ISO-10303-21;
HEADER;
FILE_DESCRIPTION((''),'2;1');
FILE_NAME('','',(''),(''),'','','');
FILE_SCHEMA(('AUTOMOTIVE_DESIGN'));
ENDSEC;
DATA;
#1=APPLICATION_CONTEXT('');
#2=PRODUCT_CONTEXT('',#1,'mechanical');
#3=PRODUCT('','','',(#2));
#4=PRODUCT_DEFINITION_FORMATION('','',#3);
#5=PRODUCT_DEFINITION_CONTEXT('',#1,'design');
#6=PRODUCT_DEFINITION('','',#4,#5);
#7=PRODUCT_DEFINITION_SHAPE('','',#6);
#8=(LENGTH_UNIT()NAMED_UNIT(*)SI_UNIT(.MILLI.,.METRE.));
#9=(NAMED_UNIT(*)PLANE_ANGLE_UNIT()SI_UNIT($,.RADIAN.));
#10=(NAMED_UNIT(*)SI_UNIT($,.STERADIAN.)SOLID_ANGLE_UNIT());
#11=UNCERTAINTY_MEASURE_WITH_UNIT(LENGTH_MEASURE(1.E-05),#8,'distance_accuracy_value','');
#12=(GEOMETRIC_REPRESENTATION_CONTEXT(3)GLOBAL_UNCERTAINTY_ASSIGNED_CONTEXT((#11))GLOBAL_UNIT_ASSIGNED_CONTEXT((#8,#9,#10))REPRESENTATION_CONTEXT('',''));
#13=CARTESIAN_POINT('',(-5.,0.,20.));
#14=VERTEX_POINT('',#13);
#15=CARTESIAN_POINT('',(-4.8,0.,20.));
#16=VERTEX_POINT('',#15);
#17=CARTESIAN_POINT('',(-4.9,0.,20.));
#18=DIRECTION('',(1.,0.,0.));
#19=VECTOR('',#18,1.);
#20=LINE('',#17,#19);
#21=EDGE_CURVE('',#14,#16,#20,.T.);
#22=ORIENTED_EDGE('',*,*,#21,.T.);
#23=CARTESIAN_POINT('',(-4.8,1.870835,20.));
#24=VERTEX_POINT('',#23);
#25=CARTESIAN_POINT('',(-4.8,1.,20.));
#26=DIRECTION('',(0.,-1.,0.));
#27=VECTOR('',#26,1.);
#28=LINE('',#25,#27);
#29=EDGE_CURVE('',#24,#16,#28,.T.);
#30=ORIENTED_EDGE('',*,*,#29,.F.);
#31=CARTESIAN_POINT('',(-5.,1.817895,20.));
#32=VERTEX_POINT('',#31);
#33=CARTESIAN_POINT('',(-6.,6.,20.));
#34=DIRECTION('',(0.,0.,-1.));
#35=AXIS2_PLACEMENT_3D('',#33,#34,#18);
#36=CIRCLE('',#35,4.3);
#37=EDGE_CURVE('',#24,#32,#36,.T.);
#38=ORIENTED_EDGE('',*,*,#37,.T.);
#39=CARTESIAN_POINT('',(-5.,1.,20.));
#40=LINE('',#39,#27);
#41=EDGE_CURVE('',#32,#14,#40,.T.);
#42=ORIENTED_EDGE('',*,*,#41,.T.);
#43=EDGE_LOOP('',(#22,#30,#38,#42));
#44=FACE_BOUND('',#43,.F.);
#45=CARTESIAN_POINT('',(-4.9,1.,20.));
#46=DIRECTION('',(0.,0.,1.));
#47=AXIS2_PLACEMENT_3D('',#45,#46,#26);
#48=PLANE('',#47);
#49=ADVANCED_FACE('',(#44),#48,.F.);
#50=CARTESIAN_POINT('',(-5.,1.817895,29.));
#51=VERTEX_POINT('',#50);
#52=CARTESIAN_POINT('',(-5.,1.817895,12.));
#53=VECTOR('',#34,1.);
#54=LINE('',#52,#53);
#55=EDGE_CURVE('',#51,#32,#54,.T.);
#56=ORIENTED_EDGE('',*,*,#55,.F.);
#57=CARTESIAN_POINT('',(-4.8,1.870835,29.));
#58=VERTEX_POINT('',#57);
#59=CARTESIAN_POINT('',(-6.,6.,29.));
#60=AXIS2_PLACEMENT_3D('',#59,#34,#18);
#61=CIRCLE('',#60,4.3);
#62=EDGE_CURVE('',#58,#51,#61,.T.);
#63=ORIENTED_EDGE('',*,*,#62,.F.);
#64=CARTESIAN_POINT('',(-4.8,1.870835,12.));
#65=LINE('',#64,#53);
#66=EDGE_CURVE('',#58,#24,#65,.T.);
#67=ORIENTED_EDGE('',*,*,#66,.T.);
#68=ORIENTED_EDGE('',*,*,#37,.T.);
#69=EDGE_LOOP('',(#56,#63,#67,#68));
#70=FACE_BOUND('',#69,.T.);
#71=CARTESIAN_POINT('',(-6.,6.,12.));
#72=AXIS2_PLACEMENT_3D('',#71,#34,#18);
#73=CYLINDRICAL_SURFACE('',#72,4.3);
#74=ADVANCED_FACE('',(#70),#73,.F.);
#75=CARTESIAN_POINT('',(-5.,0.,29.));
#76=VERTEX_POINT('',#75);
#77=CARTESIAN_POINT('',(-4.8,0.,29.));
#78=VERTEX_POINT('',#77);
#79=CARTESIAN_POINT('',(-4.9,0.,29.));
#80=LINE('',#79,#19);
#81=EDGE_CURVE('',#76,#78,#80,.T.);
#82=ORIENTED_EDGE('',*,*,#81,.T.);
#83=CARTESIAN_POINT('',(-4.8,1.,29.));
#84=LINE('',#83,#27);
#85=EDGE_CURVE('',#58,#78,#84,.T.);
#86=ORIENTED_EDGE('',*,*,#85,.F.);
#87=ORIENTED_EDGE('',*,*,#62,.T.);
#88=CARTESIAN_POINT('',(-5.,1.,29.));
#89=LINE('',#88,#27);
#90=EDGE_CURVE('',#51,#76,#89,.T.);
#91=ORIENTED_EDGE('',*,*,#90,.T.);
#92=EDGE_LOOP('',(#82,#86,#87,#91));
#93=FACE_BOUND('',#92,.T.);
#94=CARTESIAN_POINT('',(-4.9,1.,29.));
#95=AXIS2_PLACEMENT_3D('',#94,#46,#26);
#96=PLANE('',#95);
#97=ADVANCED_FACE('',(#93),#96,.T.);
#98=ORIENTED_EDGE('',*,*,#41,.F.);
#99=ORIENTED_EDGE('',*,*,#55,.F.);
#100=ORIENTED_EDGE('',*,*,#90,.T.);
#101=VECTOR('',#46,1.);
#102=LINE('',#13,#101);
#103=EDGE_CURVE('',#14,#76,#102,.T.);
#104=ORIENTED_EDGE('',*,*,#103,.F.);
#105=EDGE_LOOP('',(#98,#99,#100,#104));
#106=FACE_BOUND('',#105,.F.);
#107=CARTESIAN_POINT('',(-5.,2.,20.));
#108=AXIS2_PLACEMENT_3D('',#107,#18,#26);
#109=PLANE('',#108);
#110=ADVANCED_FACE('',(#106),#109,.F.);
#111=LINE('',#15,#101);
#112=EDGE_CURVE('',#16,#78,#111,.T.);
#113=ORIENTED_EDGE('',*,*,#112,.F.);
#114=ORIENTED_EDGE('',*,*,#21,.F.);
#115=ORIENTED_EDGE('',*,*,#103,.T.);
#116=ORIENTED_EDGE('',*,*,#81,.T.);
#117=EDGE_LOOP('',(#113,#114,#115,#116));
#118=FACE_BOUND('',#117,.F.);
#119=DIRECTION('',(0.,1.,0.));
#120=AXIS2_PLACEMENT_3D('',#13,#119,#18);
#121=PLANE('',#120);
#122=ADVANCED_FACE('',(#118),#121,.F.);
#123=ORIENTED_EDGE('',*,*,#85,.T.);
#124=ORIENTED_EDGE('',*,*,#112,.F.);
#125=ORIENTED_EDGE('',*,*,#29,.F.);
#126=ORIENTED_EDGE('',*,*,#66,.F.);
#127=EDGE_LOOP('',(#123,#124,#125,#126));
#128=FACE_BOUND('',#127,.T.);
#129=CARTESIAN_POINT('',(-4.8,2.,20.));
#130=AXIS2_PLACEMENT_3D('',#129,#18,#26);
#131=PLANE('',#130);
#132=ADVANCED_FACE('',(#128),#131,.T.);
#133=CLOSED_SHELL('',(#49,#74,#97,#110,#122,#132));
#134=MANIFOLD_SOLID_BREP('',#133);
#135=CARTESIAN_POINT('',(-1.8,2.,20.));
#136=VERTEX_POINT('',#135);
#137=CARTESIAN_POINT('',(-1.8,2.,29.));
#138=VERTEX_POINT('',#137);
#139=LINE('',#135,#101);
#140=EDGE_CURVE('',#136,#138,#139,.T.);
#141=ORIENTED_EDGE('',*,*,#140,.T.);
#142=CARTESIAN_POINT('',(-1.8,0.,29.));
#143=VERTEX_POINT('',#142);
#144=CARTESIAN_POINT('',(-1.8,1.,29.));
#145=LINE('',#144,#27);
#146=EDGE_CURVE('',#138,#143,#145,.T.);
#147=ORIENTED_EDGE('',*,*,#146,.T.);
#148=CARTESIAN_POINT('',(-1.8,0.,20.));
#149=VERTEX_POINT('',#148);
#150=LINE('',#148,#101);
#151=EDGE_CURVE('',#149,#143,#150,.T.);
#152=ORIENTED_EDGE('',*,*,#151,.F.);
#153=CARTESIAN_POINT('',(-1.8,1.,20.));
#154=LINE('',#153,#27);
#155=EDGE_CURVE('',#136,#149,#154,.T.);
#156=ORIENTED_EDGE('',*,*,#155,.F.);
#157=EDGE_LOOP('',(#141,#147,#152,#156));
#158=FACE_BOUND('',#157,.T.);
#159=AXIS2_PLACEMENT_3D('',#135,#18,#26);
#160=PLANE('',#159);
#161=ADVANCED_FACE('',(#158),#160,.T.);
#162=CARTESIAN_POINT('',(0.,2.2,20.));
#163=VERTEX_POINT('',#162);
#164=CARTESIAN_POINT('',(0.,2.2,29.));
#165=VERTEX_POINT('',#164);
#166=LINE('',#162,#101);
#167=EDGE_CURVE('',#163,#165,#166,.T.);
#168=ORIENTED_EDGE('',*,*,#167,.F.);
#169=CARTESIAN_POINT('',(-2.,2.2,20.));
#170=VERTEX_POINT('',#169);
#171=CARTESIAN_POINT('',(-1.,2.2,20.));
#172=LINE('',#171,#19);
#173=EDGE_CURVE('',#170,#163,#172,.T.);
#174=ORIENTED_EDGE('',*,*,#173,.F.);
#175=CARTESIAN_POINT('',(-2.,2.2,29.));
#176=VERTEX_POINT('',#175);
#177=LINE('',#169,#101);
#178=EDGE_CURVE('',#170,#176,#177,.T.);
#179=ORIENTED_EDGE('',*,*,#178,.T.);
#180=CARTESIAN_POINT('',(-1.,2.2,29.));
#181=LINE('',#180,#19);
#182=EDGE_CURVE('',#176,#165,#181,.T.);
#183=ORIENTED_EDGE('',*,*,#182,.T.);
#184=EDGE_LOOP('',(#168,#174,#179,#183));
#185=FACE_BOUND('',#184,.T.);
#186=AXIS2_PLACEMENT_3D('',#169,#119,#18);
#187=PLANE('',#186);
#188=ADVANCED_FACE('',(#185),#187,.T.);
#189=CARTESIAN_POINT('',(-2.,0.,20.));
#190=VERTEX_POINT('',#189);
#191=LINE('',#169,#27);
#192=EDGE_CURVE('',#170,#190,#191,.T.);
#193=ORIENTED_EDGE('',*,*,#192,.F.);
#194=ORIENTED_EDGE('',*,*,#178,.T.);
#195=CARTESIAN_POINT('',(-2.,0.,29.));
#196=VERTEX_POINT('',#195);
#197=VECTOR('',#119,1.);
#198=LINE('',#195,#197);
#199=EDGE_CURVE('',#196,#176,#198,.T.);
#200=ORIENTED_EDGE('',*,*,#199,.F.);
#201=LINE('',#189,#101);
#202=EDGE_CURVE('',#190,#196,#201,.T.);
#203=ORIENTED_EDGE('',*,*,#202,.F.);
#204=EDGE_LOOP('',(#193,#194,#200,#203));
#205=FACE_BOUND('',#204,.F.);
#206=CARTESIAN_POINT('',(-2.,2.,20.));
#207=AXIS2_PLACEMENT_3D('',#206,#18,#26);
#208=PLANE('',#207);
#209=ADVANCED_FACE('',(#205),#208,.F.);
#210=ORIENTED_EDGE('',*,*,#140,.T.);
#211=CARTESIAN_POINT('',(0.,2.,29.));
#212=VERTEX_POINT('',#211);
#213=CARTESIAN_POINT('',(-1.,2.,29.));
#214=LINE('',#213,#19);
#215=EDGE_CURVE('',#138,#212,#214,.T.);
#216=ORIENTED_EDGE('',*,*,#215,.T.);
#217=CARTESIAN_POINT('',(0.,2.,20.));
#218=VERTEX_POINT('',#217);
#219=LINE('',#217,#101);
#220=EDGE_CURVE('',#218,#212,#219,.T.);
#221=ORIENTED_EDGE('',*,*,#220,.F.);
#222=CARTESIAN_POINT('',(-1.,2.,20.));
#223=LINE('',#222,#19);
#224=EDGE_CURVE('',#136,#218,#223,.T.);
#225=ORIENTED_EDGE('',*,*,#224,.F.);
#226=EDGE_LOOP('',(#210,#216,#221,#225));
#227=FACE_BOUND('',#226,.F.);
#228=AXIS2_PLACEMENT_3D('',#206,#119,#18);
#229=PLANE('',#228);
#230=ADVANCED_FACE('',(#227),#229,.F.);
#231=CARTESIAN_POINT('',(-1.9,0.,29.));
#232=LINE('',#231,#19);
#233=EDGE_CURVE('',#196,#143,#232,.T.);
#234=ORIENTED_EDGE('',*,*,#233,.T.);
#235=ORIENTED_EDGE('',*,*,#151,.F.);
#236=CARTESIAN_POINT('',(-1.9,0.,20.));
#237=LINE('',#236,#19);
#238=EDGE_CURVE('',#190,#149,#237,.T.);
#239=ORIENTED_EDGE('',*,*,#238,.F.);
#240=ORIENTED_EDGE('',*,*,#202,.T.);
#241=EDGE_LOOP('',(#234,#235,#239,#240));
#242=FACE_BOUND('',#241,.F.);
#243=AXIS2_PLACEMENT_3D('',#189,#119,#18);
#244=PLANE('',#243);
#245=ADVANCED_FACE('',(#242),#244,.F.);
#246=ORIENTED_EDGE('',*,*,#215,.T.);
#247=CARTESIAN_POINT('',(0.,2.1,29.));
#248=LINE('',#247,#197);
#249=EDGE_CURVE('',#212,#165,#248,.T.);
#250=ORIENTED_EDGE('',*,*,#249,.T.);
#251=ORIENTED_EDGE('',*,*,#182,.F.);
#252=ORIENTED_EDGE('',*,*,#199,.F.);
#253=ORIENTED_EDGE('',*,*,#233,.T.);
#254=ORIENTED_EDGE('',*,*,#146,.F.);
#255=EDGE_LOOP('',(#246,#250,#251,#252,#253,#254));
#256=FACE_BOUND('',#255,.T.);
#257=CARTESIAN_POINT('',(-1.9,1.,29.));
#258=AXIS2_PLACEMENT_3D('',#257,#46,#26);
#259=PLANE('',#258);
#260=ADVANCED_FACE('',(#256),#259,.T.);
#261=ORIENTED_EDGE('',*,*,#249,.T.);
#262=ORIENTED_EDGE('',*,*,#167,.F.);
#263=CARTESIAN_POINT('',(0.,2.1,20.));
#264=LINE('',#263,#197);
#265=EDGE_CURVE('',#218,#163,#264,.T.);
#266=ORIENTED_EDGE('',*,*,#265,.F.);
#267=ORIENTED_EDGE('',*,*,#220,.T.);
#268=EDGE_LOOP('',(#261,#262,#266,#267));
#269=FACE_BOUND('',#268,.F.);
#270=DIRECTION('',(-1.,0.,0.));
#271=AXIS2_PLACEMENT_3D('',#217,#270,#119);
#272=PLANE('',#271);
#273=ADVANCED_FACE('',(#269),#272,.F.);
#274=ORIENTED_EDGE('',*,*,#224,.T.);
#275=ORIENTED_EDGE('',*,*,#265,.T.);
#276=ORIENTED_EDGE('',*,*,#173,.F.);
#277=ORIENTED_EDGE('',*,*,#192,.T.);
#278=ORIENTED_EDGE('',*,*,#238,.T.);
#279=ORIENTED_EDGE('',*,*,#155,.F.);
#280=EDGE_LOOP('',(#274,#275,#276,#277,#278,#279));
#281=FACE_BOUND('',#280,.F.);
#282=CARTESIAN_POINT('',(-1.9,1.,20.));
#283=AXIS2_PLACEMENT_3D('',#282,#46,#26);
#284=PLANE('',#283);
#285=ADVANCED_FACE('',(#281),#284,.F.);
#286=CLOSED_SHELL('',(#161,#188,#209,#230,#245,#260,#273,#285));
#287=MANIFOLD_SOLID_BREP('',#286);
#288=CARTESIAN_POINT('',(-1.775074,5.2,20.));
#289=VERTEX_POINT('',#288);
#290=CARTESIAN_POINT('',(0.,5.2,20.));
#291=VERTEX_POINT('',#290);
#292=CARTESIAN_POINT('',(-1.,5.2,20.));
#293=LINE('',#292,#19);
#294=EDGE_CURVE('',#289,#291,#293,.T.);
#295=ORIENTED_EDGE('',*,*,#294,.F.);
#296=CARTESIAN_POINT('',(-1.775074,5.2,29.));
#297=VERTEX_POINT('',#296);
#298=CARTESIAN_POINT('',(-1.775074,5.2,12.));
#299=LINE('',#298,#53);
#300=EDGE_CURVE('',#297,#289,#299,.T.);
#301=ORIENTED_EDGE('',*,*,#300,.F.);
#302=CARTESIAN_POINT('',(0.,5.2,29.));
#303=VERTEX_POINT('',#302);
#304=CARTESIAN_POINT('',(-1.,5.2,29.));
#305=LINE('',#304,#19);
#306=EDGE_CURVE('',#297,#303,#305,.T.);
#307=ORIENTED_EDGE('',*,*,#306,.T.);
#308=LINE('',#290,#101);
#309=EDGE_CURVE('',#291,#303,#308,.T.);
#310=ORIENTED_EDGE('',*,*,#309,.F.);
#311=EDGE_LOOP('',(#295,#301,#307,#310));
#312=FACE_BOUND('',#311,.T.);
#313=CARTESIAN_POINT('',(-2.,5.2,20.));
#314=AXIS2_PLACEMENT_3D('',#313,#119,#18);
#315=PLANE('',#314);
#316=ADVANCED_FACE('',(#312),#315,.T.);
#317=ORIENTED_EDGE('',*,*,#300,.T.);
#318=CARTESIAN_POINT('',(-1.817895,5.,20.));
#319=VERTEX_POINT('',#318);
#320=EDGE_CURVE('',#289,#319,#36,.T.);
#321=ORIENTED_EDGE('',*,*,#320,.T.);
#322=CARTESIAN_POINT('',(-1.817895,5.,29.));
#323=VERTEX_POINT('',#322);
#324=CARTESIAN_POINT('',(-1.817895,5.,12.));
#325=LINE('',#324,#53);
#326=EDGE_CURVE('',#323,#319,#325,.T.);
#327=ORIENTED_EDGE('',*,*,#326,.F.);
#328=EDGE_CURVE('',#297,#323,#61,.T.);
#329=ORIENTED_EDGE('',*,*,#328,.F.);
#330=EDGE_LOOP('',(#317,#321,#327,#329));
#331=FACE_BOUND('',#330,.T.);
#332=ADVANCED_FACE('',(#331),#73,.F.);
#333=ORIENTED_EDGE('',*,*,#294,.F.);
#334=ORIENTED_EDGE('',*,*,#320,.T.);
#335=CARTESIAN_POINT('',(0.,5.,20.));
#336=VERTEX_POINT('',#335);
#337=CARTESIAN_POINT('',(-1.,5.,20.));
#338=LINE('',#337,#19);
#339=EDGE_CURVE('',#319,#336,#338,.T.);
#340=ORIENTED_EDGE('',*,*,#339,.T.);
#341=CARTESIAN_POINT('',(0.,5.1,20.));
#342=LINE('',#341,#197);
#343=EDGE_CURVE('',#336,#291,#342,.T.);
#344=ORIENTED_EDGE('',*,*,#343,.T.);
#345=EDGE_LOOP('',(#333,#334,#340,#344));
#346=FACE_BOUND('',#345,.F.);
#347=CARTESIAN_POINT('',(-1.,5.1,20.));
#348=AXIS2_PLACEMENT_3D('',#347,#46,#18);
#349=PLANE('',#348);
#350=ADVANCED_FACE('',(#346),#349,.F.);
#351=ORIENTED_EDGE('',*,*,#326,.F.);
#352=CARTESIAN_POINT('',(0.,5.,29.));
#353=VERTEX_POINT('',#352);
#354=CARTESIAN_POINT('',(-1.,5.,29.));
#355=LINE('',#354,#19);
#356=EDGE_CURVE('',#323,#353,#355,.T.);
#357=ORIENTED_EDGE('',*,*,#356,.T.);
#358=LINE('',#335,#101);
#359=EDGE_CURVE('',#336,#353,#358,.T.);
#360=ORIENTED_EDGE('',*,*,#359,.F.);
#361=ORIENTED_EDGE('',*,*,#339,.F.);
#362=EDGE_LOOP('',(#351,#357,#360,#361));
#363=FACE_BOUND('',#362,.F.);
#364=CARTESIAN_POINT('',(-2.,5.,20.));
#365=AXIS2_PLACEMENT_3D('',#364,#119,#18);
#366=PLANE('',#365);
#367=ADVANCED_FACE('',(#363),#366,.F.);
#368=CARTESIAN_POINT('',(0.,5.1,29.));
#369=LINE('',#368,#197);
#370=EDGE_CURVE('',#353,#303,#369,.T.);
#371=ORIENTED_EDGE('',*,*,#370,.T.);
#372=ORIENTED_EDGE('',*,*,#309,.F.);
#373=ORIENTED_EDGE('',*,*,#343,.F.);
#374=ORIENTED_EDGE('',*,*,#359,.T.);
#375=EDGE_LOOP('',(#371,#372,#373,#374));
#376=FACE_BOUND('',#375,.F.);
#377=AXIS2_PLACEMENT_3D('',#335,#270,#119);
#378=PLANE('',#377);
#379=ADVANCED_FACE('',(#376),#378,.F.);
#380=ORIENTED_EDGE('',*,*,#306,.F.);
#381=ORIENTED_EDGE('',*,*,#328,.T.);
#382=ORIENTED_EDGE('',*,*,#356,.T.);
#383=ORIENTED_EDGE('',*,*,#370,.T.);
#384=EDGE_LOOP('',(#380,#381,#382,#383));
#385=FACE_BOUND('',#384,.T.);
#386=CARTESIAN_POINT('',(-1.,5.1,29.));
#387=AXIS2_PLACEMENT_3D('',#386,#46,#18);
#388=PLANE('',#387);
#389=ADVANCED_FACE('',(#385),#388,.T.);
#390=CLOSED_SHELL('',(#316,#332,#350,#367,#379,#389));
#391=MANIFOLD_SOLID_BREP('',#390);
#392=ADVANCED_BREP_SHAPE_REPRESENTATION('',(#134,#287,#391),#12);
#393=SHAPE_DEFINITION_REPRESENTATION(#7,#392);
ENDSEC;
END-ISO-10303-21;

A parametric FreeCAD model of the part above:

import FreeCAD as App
import Part
import Sketcher
Q = App.Units.Quantity


def add_polygon(sketch, points):
    """Adds a closed chain of lines whose ends are joined by coincident constraints."""
    first, n = sketch.GeometryCount, len(points)
    for a, b in zip(points, points[1:] + points[:1]):
        sketch.addGeometry(Part.LineSegment(App.Vector(*a, 0), App.Vector(*b, 0)), False)
    for i in range(n):
        sketch.addConstraint(Sketcher.Constraint("Coincident", first + i, 2, first + (i + 1) % n, 1))

doc = App.newDocument("Part")
body = doc.addObject("PartDesign::Body", "Body")

sketch1 = body.newObject("Sketcher::SketchObject", "Sketch")
sketch1.AttachmentSupport = (doc.getObject("XY_Plane"), [""])
sketch1.MapMode = "FlatFace"
sketch1.AttachmentOffset = App.Placement(App.Vector(0, 0, 12), App.Rotation())
sketch1.addGeometry(Part.Circle(App.Vector(-6, 6, 0), App.Vector(0, 0, 1), 4.3), False)
sketch1.addConstraint([
    Sketcher.Constraint("Diameter", 0, Q("8.6 mm")),
    Sketcher.Constraint("DistanceX", 0, 3, -1, 1, Q("6 mm")),
    Sketcher.Constraint("DistanceY", -1, 1, 0, 3, Q("6 mm")),
])
pad1 = body.newObject("PartDesign::Pad", "Pad")
pad1.Profile = sketch1
pad1.Length = 20
body2 = doc.addObject("PartDesign::Body", "Body001")

sketch2 = body2.newObject("Sketcher::SketchObject", "Sketch001")
sketch2.AttachmentSupport = (doc.getObject("XY_Plane001"), [""])
sketch2.MapMode = "FlatFace"
sketch2.AttachmentOffset = App.Placement(App.Vector(0, 0, 20), App.Rotation())
add_polygon(sketch2, [(-1.8, 2), (-2, 2), (-2, 0), (-1.8, 0)])
sketch2.addConstraint([
    Sketcher.Constraint("Horizontal", 0),
    Sketcher.Constraint("Vertical", 1),
    Sketcher.Constraint("Horizontal", 2),
    Sketcher.Constraint("Vertical", 3),
    Sketcher.Constraint("PointOnObject", 1, 2, -1),
    Sketcher.Constraint("DistanceY", 1, 2, 1, 1, Q("2 mm")),
    Sketcher.Constraint("DistanceX", 0, 2, 0, 1, Q("0.2 mm")),
    Sketcher.Constraint("DistanceX", 0, 2, -1, 1, Q("2 mm")),
])
pad2 = body2.newObject("PartDesign::Pad", "Pad001")
pad2.Profile = sketch2
pad2.Length = 9
body3 = doc.addObject("PartDesign::Body", "Body002")

sketch3 = body3.newObject("Sketcher::SketchObject", "Sketch002")
sketch3.AttachmentSupport = (doc.getObject("XY_Plane002"), [""])
sketch3.MapMode = "FlatFace"
sketch3.AttachmentOffset = App.Placement(App.Vector(0, 0, 20), App.Rotation())
add_polygon(sketch3, [(-2, 5.2), (-2, 5), (0, 5), (0, 5.2)])
sketch3.addConstraint([
    Sketcher.Constraint("Vertical", 0),
    Sketcher.Constraint("Horizontal", 1),
    Sketcher.Constraint("Vertical", 2),
    Sketcher.Constraint("Horizontal", 3),
    Sketcher.Constraint("PointOnObject", 1, 2, -2),
    Sketcher.Constraint("DistanceX", 1, 1, 1, 2, Q("2 mm")),
    Sketcher.Constraint("DistanceY", 0, 2, 0, 1, Q("0.2 mm")),
    Sketcher.Constraint("DistanceY", -1, 1, 0, 2, Q("5 mm")),
])
pad3 = body3.newObject("PartDesign::Pad", "Pad002")
pad3.Profile = sketch3
pad3.Length = 9
body4 = doc.addObject("PartDesign::Body", "Body003")

sketch4 = body4.newObject("Sketcher::SketchObject", "Sketch003")
sketch4.AttachmentSupport = (doc.getObject("XY_Plane003"), [""])
sketch4.MapMode = "FlatFace"
sketch4.AttachmentOffset = App.Placement(App.Vector(0, 0, 20), App.Rotation())
add_polygon(sketch4, [(-4.8, 2), (-5, 2), (-5, 0), (-4.8, 0)])
sketch4.addConstraint([
    Sketcher.Constraint("Horizontal", 0),
    Sketcher.Constraint("Vertical", 1),
    Sketcher.Constraint("Horizontal", 2),
    Sketcher.Constraint("Vertical", 3),
    Sketcher.Constraint("PointOnObject", 1, 2, -1),
    Sketcher.Constraint("DistanceY", 1, 2, 1, 1, Q("2 mm")),
    Sketcher.Constraint("DistanceX", 0, 2, 0, 1, Q("0.2 mm")),
    Sketcher.Constraint("DistanceX", 0, 2, -1, 1, Q("5 mm")),
])
pad4 = body4.newObject("PartDesign::Pad", "Pad003")
pad4.Profile = sketch4
pad4.Length = 9
body5 = doc.addObject("PartDesign::Body", "Body004")
body5.AllowCompound = True

sketch5 = body5.newObject("Sketcher::SketchObject", "Sketch004")
sketch5.AttachmentSupport = (doc.getObject("XY_Plane004"), [""])
sketch5.MapMode = "FlatFace"
sketch5.AttachmentOffset = App.Placement(App.Vector(0, 0, 20), App.Rotation())
add_polygon(sketch5, [(-2, 2.2), (-2, 2), (0, 2), (0, 2.2)])
sketch5.addConstraint([
    Sketcher.Constraint("Vertical", 0),
    Sketcher.Constraint("Horizontal", 1),
    Sketcher.Constraint("Vertical", 2),
    Sketcher.Constraint("Horizontal", 3),
    Sketcher.Constraint("PointOnObject", 1, 2, -2),
    Sketcher.Constraint("DistanceX", 1, 1, 1, 2, Q("2 mm")),
    Sketcher.Constraint("DistanceY", 0, 2, 0, 1, Q("0.2 mm")),
    Sketcher.Constraint("DistanceY", -1, 1, 0, 2, Q("2 mm")),
])
pad5 = body5.newObject("PartDesign::Pad", "Pad004")
pad5.Profile = sketch5
pad5.Length = 9
doc.recompute()

boolean = body5.newObject("PartDesign::Boolean", "Boolean")
boolean.Type = "Fuse"
boolean.addObjects([body2])
doc.recompute()

boolean2 = body5.newObject("PartDesign::Boolean", "Boolean001")
boolean2.Type = "Fuse"
boolean2.addObjects([body3])
doc.recompute()

boolean3 = body5.newObject("PartDesign::Boolean", "Boolean002")
boolean3.Type = "Fuse"
boolean3.addObjects([body4])
doc.recompute()

boolean4 = body5.newObject("PartDesign::Boolean", "Boolean003")
boolean4.Type = "Cut"
boolean4.addObjects([body])

doc.recompute()
